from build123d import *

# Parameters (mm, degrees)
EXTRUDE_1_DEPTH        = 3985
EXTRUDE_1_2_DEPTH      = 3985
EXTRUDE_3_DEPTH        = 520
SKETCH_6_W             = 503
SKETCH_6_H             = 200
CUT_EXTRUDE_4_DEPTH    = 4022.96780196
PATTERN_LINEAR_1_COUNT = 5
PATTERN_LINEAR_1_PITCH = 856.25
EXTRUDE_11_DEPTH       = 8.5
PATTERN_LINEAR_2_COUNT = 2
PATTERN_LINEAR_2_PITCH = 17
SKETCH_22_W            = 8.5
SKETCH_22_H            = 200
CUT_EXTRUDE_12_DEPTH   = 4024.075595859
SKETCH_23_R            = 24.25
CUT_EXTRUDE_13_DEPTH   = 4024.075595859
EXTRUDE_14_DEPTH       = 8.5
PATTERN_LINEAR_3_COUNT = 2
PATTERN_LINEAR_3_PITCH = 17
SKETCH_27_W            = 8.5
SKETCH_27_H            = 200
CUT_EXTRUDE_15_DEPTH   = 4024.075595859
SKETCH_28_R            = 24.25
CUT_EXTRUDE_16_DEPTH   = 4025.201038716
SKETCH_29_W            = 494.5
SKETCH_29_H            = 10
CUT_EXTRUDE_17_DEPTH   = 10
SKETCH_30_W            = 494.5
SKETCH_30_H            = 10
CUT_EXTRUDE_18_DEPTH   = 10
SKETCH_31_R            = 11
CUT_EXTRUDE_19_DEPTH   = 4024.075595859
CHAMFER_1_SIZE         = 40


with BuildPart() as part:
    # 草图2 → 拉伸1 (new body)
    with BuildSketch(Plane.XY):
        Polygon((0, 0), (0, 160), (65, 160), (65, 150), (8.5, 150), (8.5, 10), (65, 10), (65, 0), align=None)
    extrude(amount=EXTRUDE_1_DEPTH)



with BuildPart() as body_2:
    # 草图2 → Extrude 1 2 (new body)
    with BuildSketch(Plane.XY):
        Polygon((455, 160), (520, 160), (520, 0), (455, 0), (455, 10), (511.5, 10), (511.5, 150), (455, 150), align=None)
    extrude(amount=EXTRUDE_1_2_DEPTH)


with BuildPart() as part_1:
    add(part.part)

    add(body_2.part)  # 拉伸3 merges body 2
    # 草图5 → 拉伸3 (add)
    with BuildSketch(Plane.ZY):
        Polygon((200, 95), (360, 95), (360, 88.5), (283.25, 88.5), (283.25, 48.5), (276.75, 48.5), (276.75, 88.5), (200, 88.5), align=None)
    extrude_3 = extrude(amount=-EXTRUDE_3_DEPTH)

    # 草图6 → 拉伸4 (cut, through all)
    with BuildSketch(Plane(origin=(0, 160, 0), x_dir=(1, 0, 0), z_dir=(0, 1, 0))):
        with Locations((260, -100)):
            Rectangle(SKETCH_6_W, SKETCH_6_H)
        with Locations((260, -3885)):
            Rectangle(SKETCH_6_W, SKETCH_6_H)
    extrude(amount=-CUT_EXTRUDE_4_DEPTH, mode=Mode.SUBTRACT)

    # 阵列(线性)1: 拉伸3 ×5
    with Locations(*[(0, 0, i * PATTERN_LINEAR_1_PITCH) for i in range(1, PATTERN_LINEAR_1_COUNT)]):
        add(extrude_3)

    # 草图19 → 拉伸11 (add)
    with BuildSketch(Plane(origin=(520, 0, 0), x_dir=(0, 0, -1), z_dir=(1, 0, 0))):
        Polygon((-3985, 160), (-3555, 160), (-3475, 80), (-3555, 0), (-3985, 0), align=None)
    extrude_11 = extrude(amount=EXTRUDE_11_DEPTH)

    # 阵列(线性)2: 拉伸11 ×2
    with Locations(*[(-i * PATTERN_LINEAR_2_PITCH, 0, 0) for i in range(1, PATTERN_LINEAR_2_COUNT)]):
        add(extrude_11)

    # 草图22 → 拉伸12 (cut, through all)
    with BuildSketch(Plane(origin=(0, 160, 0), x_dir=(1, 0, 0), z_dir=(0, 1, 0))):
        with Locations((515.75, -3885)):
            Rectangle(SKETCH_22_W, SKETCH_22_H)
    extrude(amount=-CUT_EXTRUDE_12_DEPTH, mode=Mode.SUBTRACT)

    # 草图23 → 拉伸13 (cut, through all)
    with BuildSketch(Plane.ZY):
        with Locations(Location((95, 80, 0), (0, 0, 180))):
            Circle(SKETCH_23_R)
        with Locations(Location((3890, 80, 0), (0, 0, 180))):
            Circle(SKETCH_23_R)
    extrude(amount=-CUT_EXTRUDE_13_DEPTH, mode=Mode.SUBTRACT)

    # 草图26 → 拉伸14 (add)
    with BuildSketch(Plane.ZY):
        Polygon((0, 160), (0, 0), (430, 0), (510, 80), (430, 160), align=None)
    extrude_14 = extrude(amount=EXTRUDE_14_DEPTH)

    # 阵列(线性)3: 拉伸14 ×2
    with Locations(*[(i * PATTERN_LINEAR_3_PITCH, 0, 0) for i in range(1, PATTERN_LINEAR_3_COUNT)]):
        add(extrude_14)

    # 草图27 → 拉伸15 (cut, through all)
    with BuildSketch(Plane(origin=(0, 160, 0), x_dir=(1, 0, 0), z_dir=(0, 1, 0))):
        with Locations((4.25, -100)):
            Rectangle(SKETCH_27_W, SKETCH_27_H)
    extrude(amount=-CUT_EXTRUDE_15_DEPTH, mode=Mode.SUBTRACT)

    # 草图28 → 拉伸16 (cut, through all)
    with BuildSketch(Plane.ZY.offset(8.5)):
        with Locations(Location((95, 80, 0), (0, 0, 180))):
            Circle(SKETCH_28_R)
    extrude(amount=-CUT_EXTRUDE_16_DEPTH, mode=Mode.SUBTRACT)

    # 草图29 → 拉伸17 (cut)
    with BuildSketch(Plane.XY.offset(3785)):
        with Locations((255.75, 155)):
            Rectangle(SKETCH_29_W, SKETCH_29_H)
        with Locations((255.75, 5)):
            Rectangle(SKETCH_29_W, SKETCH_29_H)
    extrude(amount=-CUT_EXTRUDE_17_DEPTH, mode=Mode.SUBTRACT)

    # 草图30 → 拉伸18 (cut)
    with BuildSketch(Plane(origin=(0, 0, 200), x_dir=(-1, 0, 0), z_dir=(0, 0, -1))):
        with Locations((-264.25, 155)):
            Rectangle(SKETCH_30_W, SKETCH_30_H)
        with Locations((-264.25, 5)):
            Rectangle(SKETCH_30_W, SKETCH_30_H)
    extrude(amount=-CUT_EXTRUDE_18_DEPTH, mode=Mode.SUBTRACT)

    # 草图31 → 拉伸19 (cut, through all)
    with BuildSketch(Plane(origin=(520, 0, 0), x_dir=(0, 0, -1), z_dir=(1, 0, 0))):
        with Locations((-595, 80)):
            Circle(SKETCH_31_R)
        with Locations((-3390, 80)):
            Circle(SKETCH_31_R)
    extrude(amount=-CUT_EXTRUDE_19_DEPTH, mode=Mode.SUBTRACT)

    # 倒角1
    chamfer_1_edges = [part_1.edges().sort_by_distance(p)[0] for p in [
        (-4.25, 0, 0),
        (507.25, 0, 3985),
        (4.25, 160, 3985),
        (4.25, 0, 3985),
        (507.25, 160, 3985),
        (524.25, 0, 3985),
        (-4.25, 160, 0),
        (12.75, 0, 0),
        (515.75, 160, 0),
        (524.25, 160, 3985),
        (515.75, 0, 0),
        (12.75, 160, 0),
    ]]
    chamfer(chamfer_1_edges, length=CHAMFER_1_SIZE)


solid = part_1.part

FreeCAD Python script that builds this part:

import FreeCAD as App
import Part
import Sketcher
Q = App.Units.Quantity


def edges_at(feature, points):
    """Names of the edges that pass closest to the given points."""
    edges = feature.Shape.Edges
    near = lambda p: min(range(len(edges)), key=lambda i: edges[i].distToShape(Part.Vertex(*p))[0])
    return sorted({f"Edge{near(p) + 1}" for p in points})


def add_polygon(sketch, points):
    """Adds a closed chain of lines whose ends are joined by coincident constraints."""
    first, n = sketch.GeometryCount, len(points)
    for a, b in zip(points, points[1:] + points[:1]):
        sketch.addGeometry(Part.LineSegment(App.Vector(*a, 0), App.Vector(*b, 0)), False)
    for i in range(n):
        sketch.addConstraint(Sketcher.Constraint("Coincident", first + i, 2, first + (i + 1) % n, 1))

doc = App.newDocument("Part")
body = doc.addObject("PartDesign::Body", "Body")

# Sketch on XY plane
sketch1 = doc.addObject("Sketcher::SketchObject", "Sketch")
body.addObject(sketch1)
sketch1.AttachmentSupport = (doc.XY_Plane, [""])
sketch1.MapMode = "FlatFace"
add_polygon(sketch1, [(0, 160), (0, 0), (65, 0), (65, 10), (8, 10), (8, 150), (65, 150), (65, 160)])  # lines 0-7
sketch1.addConstraint(Sketcher.Constraint("Vertical", 0))
sketch1.addConstraint(Sketcher.Constraint("Horizontal", 1))
sketch1.addConstraint(Sketcher.Constraint("Vertical", 2))
sketch1.addConstraint(Sketcher.Constraint("Horizontal", 3))
sketch1.addConstraint(Sketcher.Constraint("Vertical", 4))
sketch1.addConstraint(Sketcher.Constraint("Horizontal", 5))
sketch1.addConstraint(Sketcher.Constraint("Vertical", 6))
sketch1.addConstraint(Sketcher.Constraint("Horizontal", 7))
sketch1.addConstraint(Sketcher.Constraint("Coincident", 0, 2, -1, 1))
sketch1.addConstraint(Sketcher.Constraint("Vertical", 2, 2, 5, 2))
sketch1.addConstraint(Sketcher.Constraint("Equal", 2, 6))
sketch1.addConstraint(Sketcher.Constraint("DistanceX", 1, 1, 1, 2, Q("65 mm")))
sketch1.addConstraint(Sketcher.Constraint("DistanceY", 0, 2, 0, 1, Q("160 mm")))
sketch1.addConstraint(Sketcher.Constraint("DistanceY", 2, 1, 2, 2, Q("10 mm")))
sketch1.addConstraint(Sketcher.Constraint("DistanceX", 3, 2, 3, 1, Q("56.5 mm")))
pad1 = doc.addObject("PartDesign::Pad", "Pad")
body.addObject(pad1)
pad1.Profile = sketch1
pad1.Length = 3985
body2 = doc.addObject("PartDesign::Body", "Body001")

# Sketch on XY plane
sketch2 = doc.addObject("Sketcher::SketchObject", "Sketch001")
body2.addObject(sketch2)
sketch2.AttachmentSupport = (doc.getObject("XY_Plane001"), [""])
sketch2.MapMode = "FlatFace"
add_polygon(sketch2, [(520, 160), (455, 160), (455, 150), (512, 150), (512, 10), (455, 10), (455, 0), (520, 0)])  # lines 0-7
sketch2.addConstraint(Sketcher.Constraint("Horizontal", 0))
sketch2.addConstraint(Sketcher.Constraint("Vertical", 1))
sketch2.addConstraint(Sketcher.Constraint("Horizontal", 2))
sketch2.addConstraint(Sketcher.Constraint("Vertical", 3))
sketch2.addConstraint(Sketcher.Constraint("Horizontal", 4))
sketch2.addConstraint(Sketcher.Constraint("Vertical", 5))
sketch2.addConstraint(Sketcher.Constraint("Horizontal", 6))
sketch2.addConstraint(Sketcher.Constraint("Vertical", 7))
sketch2.addConstraint(Sketcher.Constraint("PointOnObject", 5, 2, -1))
sketch2.addConstraint(Sketcher.Constraint("Vertical", 1, 2, 4, 2))
sketch2.addConstraint(Sketcher.Constraint("Equal", 1, 5))
sketch2.addConstraint(Sketcher.Constraint("DistanceX", 0, 2, 0, 1, Q("65 mm")))
sketch2.addConstraint(Sketcher.Constraint("DistanceY", 1, 2, 1, 1, Q("10 mm")))
sketch2.addConstraint(Sketcher.Constraint("DistanceY", 3, 2, 3, 1, Q("140 mm")))
sketch2.addConstraint(Sketcher.Constraint("DistanceX", 2, 1, 2, 2, Q("56.5 mm")))
sketch2.addConstraint(Sketcher.Constraint("DistanceX", -1, 1, 0, 2, Q("455 mm")))
pad2 = doc.addObject("PartDesign::Pad", "Pad001")
body2.addObject(pad2)
pad2.Profile = sketch2
pad2.Length = 3985
body.AllowCompound = True
doc.recompute()

boolean = doc.addObject("PartDesign::Boolean", "Boolean")
body.addObject(boolean)
boolean.Type = "Fuse"
boolean.addObjects([body2])

# Sketch on YZ plane
sketch3 = doc.addObject("Sketcher::SketchObject", "Sketch002")
body.addObject(sketch3)
sketch3.AttachmentSupport = (doc.YZ_Plane, [""])
sketch3.MapMode = "FlatFace"
add_polygon(sketch3, [(95, 360), (95, 200), (88, 200), (88, 277), (48, 277), (48, 283), (88, 283), (88, 360)])  # lines 0-7
sketch3.addConstraint(Sketcher.Constraint("Vertical", 0))
sketch3.addConstraint(Sketcher.Constraint("Horizontal", 1))
sketch3.addConstraint(Sketcher.Constraint("Vertical", 2))
sketch3.addConstraint(Sketcher.Constraint("Horizontal", 3))
sketch3.addConstraint(Sketcher.Constraint("Vertical", 4))
sketch3.addConstraint(Sketcher.Constraint("Horizontal", 5))
sketch3.addConstraint(Sketcher.Constraint("Vertical", 6))
sketch3.addConstraint(Sketcher.Constraint("Horizontal", 7))
sketch3.addConstraint(Sketcher.Constraint("Vertical", 2, 2, 5, 2))
sketch3.addConstraint(Sketcher.Constraint("Equal", 7, 4))
sketch3.addConstraint(Sketcher.Constraint("Equal", 2, 6))
sketch3.addConstraint(Sketcher.Constraint("DistanceX", 3, 2, 3, 1, Q("40 mm")))
sketch3.addConstraint(Sketcher.Constraint("DistanceY", 0, 2, 0, 1, Q("160 mm")))
sketch3.addConstraint(Sketcher.Constraint("DistanceX", 1, 2, 1, 1, Q("6.5 mm")))
sketch3.addConstraint(Sketcher.Constraint("DistanceX", -1, 1, 0, 2, Q("95 mm")))
sketch3.addConstraint(Sketcher.Constraint("DistanceY", -1, 1, 0, 2, Q("200 mm")))
pad3 = doc.addObject("PartDesign::Pad", "Pad002")
body.addObject(pad3)
pad3.Profile = sketch3
pad3.Length = 520

# Sketch on XZ plane
sketch4 = doc.addObject("Sketcher::SketchObject", "Sketch003")
body.addObject(sketch4)
sketch4.AttachmentSupport = (doc.XZ_Plane, [""])
sketch4.MapMode = "FlatFace"
sketch4.AttachmentOffset = App.Placement(App.Vector(0, 0, -160), App.Rotation())
add_polygon(sketch4, [(8, 0), (8, 200), (512, 200), (512, 0)])  # lines 0-3
add_polygon(sketch4, [(8, 3785), (8, 3985), (512, 3985), (512, 3785)])  # lines 4-7
sketch4.addConstraint(Sketcher.Constraint("Vertical", 0))
sketch4.addConstraint(Sketcher.Constraint("Horizontal", 1))
sketch4.addConstraint(Sketcher.Constraint("Vertical", 2))
sketch4.addConstraint(Sketcher.Constraint("Horizontal", 3))
sketch4.addConstraint(Sketcher.Constraint("Vertical", 4))
sketch4.addConstraint(Sketcher.Constraint("Horizontal", 5))
sketch4.addConstraint(Sketcher.Constraint("Vertical", 6))
sketch4.addConstraint(Sketcher.Constraint("Horizontal", 7))
sketch4.addConstraint(Sketcher.Constraint("PointOnObject", 2, 2, -1))
sketch4.addConstraint(Sketcher.Constraint("Vertical", 3, 2, 4, 2))
sketch4.addConstraint(Sketcher.Constraint("Vertical", 2, 2, 5, 2))
sketch4.addConstraint(Sketcher.Constraint("Equal", 2, 4))
sketch4.addConstraint(Sketcher.Constraint("DistanceX", 1, 1, 1, 2, Q("503 mm")))
sketch4.addConstraint(Sketcher.Constraint("DistanceY", 0, 1, 0, 2, Q("200 mm")))
sketch4.addConstraint(Sketcher.Constraint("DistanceY", -1, 1, 4, 2, Q("3985 mm")))
sketch4.addConstraint(Sketcher.Constraint("DistanceX", -1, 1, 0, 2, Q("8.5 mm")))
pocket1 = doc.addObject("PartDesign::Pocket", "Pocket")
body.addObject(pocket1)
pocket1.Profile = sketch4
pocket1.Type = "ThroughAll"
pocket1.Reversed = True
doc.recompute()

linearpattern = doc.addObject("PartDesign::LinearPattern", "LinearPattern")
body.addObject(linearpattern)
linearpattern.Originals = [pad3]
linearpattern.Direction = (doc.Z_Axis, [""])
linearpattern.Mode = "offset"
linearpattern.Offset = 856.25
linearpattern.Occurrences = 5
body.Tip = linearpattern

# Sketch on YZ plane
sketch5 = doc.addObject("Sketcher::SketchObject", "Sketch004")
body.addObject(sketch5)
sketch5.AttachmentSupport = (doc.YZ_Plane, [""])
sketch5.MapMode = "FlatFace"
sketch5.AttachmentOffset = App.Placement(App.Vector(0, 0, 520), App.Rotation())
add_polygon(sketch5, [(160, 3555), (160, 3985), (0, 3985), (0, 3555), (80, 3475)])  # lines 0-4
sketch5.addConstraint(Sketcher.Constraint("Vertical", 0))
sketch5.addConstraint(Sketcher.Constraint("Horizontal", 1))
sketch5.addConstraint(Sketcher.Constraint("Vertical", 2))
sketch5.addConstraint(Sketcher.Constraint("PointOnObject", 1, 2, -2))
sketch5.addConstraint(Sketcher.Constraint("Perpendicular", 3, 4))
sketch5.addConstraint(Sketcher.Constraint("Horizontal", 2, 2, 4, 2))
sketch5.addConstraint(Sketcher.Constraint("Equal", 3, 4))
sketch5.addConstraint(Sketcher.Constraint("DistanceX", 1, 2, 1, 1, Q("160 mm")))
sketch5.addConstraint(Sketcher.Constraint("DistanceY", 0, 1, 0, 2, Q("430 mm")))
sketch5.addConstraint(Sketcher.Constraint("DistanceY", -1, 1, 0, 2, Q("3985 mm")))
pad4 = doc.addObject("PartDesign::Pad", "Pad003")
body.addObject(pad4)
pad4.Profile = sketch5
pad4.Length = 8.5
doc.recompute()

linearpattern2 = doc.addObject("PartDesign::LinearPattern", "LinearPattern001")
body.addObject(linearpattern2)
linearpattern2.Originals = [pad4]
linearpattern2.Direction = (doc.X_Axis, [""])
linearpattern2.Mode = "offset"
linearpattern2.Offset = 17
linearpattern2.Occurrences = 2
linearpattern2.Reversed = True
body.Tip = linearpattern2

# Sketch on XZ plane
sketch6 = doc.addObject("Sketcher::SketchObject", "Sketch005")
body.addObject(sketch6)
sketch6.AttachmentSupport = (doc.XZ_Plane, [""])
sketch6.MapMode = "FlatFace"
sketch6.AttachmentOffset = App.Placement(App.Vector(0, 0, -160), App.Rotation())
add_polygon(sketch6, [(512, 3785), (512, 3985), (520, 3985), (520, 3785)])  # lines 0-3
sketch6.addConstraint(Sketcher.Constraint("Vertical", 0))
sketch6.addConstraint(Sketcher.Constraint("Horizontal", 1))
sketch6.addConstraint(Sketcher.Constraint("Vertical", 2))
sketch6.addConstraint(Sketcher.Constraint("Horizontal", 3))
sketch6.addConstraint(Sketcher.Constraint("DistanceY", 0, 1, 0, 2, Q("200 mm")))
sketch6.addConstraint(Sketcher.Constraint("DistanceX", 1, 1, 1, 2, Q("8.5 mm")))
sketch6.addConstraint(Sketcher.Constraint("DistanceY", -1, 1, 0, 2, Q("3985 mm")))
sketch6.addConstraint(Sketcher.Constraint("DistanceX", -1, 1, 1, 2, Q("520 mm")))
pocket2 = doc.addObject("PartDesign::Pocket", "Pocket001")
body.addObject(pocket2)
pocket2.Profile = sketch6
pocket2.Type = "ThroughAll"
pocket2.Reversed = True

# Sketch on YZ plane
sketch7 = doc.addObject("Sketcher::SketchObject", "Sketch006")
body.addObject(sketch7)
sketch7.AttachmentSupport = (doc.YZ_Plane, [""])
sketch7.MapMode = "FlatFace"
sketch7.addGeometry(Part.Circle(App.Vector(80, 95, 0), App.Vector(0, 0, 1), 24), False)
sketch7.addGeometry(Part.Circle(App.Vector(80, 3890, 0), App.Vector(0, 0, 1), 24), False)
sketch7.addConstraint(Sketcher.Constraint("Equal", 0, 1))
sketch7.addConstraint(Sketcher.Constraint("Vertical", 0, 3, 1, 3))
sketch7.addConstraint(Sketcher.Constraint("Diameter", 0, Q("48.5 mm")))
sketch7.addConstraint(Sketcher.Constraint("DistanceX", -1, 1, 0, 3, Q("80 mm")))
sketch7.addConstraint(Sketcher.Constraint("DistanceY", -1, 1, 0, 3, Q("95 mm")))
sketch7.addConstraint(Sketcher.Constraint("DistanceY", -1, 1, 1, 3, Q("3890 mm")))
pocket3 = doc.addObject("PartDesign::Pocket", "Pocket002")
body.addObject(pocket3)
pocket3.Profile = sketch7
pocket3.Type = "ThroughAll"
pocket3.Reversed = True

# Sketch on YZ plane
sketch8 = doc.addObject("Sketcher::SketchObject", "Sketch007")
body.addObject(sketch8)
sketch8.AttachmentSupport = (doc.YZ_Plane, [""])
sketch8.MapMode = "FlatFace"
add_polygon(sketch8, [(160, 0), (0, 0), (0, 430), (80, 510), (160, 430)])  # lines 0-4
sketch8.addConstraint(Sketcher.Constraint("Horizontal", 0))
sketch8.addConstraint(Sketcher.Constraint("Vertical", 1))
sketch8.addConstraint(Sketcher.Constraint("Vertical", 4))
sketch8.addConstraint(Sketcher.Constraint("Coincident", 0, 2, -1, 1))
sketch8.addConstraint(Sketcher.Constraint("Perpendicular", 2, 3))
sketch8.addConstraint(Sketcher.Constraint("Horizontal", 1, 2, 3, 2))
sketch8.addConstraint(Sketcher.Constraint("Equal", 2, 3))
sketch8.addConstraint(Sketcher.Constraint("DistanceX", 0, 2, 0, 1, Q("160 mm")))
sketch8.addConstraint(Sketcher.Constraint("DistanceY", 1, 1, 1, 2, Q("430 mm")))
pad5 = doc.addObject("PartDesign::Pad", "Pad004")
body.addObject(pad5)
pad5.Profile = sketch8
pad5.Length = 8.5
pad5.Reversed = True
doc.recompute()

linearpattern3 = doc.addObject("PartDesign::LinearPattern", "LinearPattern002")
body.addObject(linearpattern3)
linearpattern3.Originals = [pad5]
linearpattern3.Direction = (doc.X_Axis, [""])
linearpattern3.Mode = "offset"
linearpattern3.Offset = 17
linearpattern3.Occurrences = 2
body.Tip = linearpattern3

# Sketch on XZ plane
sketch9 = doc.addObject("Sketcher::SketchObject", "Sketch008")
body.addObject(sketch9)
sketch9.AttachmentSupport = (doc.XZ_Plane, [""])
sketch9.MapMode = "FlatFace"
sketch9.AttachmentOffset = App.Placement(App.Vector(0, 0, -160), App.Rotation())
add_polygon(sketch9, [(0, 0), (0, 200), (8, 200), (8, 0)])  # lines 0-3
sketch9.addConstraint(Sketcher.Constraint("Vertical", 0))
sketch9.addConstraint(Sketcher.Constraint("Horizontal", 1))
sketch9.addConstraint(Sketcher.Constraint("Vertical", 2))
sketch9.addConstraint(Sketcher.Constraint("Horizontal", 3))
sketch9.addConstraint(Sketcher.Constraint("Coincident", 3, 2, -1, 1))
sketch9.addConstraint(Sketcher.Constraint("DistanceY", 0, 1, 0, 2, Q("200 mm")))
sketch9.addConstraint(Sketcher.Constraint("DistanceX", 1, 1, 1, 2, Q("8.5 mm")))
pocket4 = doc.addObject("PartDesign::Pocket", "Pocket003")
body.addObject(pocket4)
pocket4.Profile = sketch9
pocket4.Type = "ThroughAll"
pocket4.Reversed = True

# Sketch on YZ plane
sketch10 = doc.addObject("Sketcher::SketchObject", "Sketch009")
body.addObject(sketch10)
sketch10.AttachmentSupport = (doc.YZ_Plane, [""])
sketch10.MapMode = "FlatFace"
sketch10.AttachmentOffset = App.Placement(App.Vector(0, 0, -8.5), App.Rotation())
sketch10.addGeometry(Part.Circle(App.Vector(80, 95, 0), App.Vector(0, 0, 1), 24), False)
sketch10.addConstraint(Sketcher.Constraint("Diameter", 0, Q("48.5 mm")))
sketch10.addConstraint(Sketcher.Constraint("DistanceX", -1, 1, 0, 3, Q("80 mm")))
sketch10.addConstraint(Sketcher.Constraint("DistanceY", -1, 1, 0, 3, Q("95 mm")))
pocket5 = doc.addObject("PartDesign::Pocket", "Pocket004")
body.addObject(pocket5)
pocket5.Profile = sketch10
pocket5.Type = "ThroughAll"
pocket5.Reversed = True

# Sketch on XY plane
sketch11 = doc.addObject("Sketcher::SketchObject", "Sketch010")
body.addObject(sketch11)
sketch11.AttachmentSupport = (doc.XY_Plane, [""])
sketch11.MapMode = "FlatFace"
sketch11.AttachmentOffset = App.Placement(App.Vector(0, 0, 3785), App.Rotation())
add_polygon(sketch11, [(8, 160), (8, 150), (503, 150), (503, 160)])  # lines 0-3
add_polygon(sketch11, [(8, 10), (8, 0), (503, 0), (503, 10)])  # lines 4-7
sketch11.addConstraint(Sketcher.Constraint("Vertical", 0))
sketch11.addConstraint(Sketcher.Constraint("Horizontal", 1))
sketch11.addConstraint(Sketcher.Constraint("Vertical", 2))
sketch11.addConstraint(Sketcher.Constraint("Horizontal", 3))
sketch11.addConstraint(Sketcher.Constraint("Vertical", 4))
sketch11.addConstraint(Sketcher.Constraint("Horizontal", 5))
sketch11.addConstraint(Sketcher.Constraint("Vertical", 6))
sketch11.addConstraint(Sketcher.Constraint("Horizontal", 7))
sketch11.addConstraint(Sketcher.Constraint("PointOnObject", 4, 2, -1))
sketch11.addConstraint(Sketcher.Constraint("Vertical", 3, 2, 4, 2))
sketch11.addConstraint(Sketcher.Constraint("Vertical", 2, 2, 5, 2))
sketch11.addConstraint(Sketcher.Constraint("Equal", 2, 4))
sketch11.addConstraint(Sketcher.Constraint("DistanceY", 0, 2, 0, 1, Q("10 mm")))
sketch11.addConstraint(Sketcher.Constraint("DistanceX", 1, 1, 1, 2, Q("494.5 mm")))
sketch11.addConstraint(Sketcher.Constraint("DistanceY", -1, 1, 0, 2, Q("150 mm")))
sketch11.addConstraint(Sketcher.Constraint("DistanceX", -1, 1, 1, 2, Q("503 mm")))
pocket6 = doc.addObject("PartDesign::Pocket", "Pocket005")
body.addObject(pocket6)
pocket6.Profile = sketch11
pocket6.Length = 10

# Sketch on XY plane
sketch12 = doc.addObject("Sketcher::SketchObject", "Sketch011")
body.addObject(sketch12)
sketch12.AttachmentSupport = (doc.XY_Plane, [""])
sketch12.MapMode = "FlatFace"
sketch12.AttachmentOffset = App.Placement(App.Vector(0, 0, 200), App.Rotation())
add_polygon(sketch12, [(512, 160), (512, 150), (17, 150), (17, 160)])  # lines 0-3
add_polygon(sketch12, [(512, 10), (512, 0), (17, 0), (17, 10)])  # lines 4-7
sketch12.addConstraint(Sketcher.Constraint("Vertical", 0))
sketch12.addConstraint(Sketcher.Constraint("Horizontal", 1))
sketch12.addConstraint(Sketcher.Constraint("Vertical", 2))
sketch12.addConstraint(Sketcher.Constraint("Horizontal", 3))
sketch12.addConstraint(Sketcher.Constraint("Vertical", 4))
sketch12.addConstraint(Sketcher.Constraint("Horizontal", 5))
sketch12.addConstraint(Sketcher.Constraint("Vertical", 6))
sketch12.addConstraint(Sketcher.Constraint("Horizontal", 7))
sketch12.addConstraint(Sketcher.Constraint("PointOnObject", 4, 2, -1))
sketch12.addConstraint(Sketcher.Constraint("Vertical", 3, 2, 4, 2))
sketch12.addConstraint(Sketcher.Constraint("Vertical", 2, 2, 5, 2))
sketch12.addConstraint(Sketcher.Constraint("Equal", 2, 4))
sketch12.addConstraint(Sketcher.Constraint("DistanceY", 0, 2, 0, 1, Q("10 mm")))
sketch12.addConstraint(Sketcher.Constraint("DistanceX", 1, 2, 1, 1, Q("494.5 mm")))
sketch12.addConstraint(Sketcher.Constraint("DistanceY", -1, 1, 0, 2, Q("150 mm")))
sketch12.addConstraint(Sketcher.Constraint("DistanceX", -1, 1, 1, 2, Q("17 mm")))
pocket7 = doc.addObject("PartDesign::Pocket", "Pocket006")
body.addObject(pocket7)
pocket7.Profile = sketch12
pocket7.Length = 10
pocket7.Reversed = True

# Sketch on YZ plane
sketch13 = doc.addObject("Sketcher::SketchObject", "Sketch012")
body.addObject(sketch13)
sketch13.AttachmentSupport = (doc.YZ_Plane, [""])
sketch13.MapMode = "FlatFace"
sketch13.AttachmentOffset = App.Placement(App.Vector(0, 0, 520), App.Rotation())
sketch13.addGeometry(Part.Circle(App.Vector(80, 595, 0), App.Vector(0, 0, 1), 11), False)
sketch13.addGeometry(Part.Circle(App.Vector(80, 3390, 0), App.Vector(0, 0, 1), 11), False)
sketch13.addConstraint(Sketcher.Constraint("Equal", 0, 1))
sketch13.addConstraint(Sketcher.Constraint("Vertical", 0, 3, 1, 3))
sketch13.addConstraint(Sketcher.Constraint("Diameter", 0, Q("22 mm")))
sketch13.addConstraint(Sketcher.Constraint("DistanceX", -1, 1, 0, 3, Q("80 mm")))
sketch13.addConstraint(Sketcher.Constraint("DistanceY", -1, 1, 0, 3, Q("595 mm")))
sketch13.addConstraint(Sketcher.Constraint("DistanceY", -1, 1, 1, 3, Q("3390 mm")))
pocket8 = doc.addObject("PartDesign::Pocket", "Pocket007")
body.addObject(pocket8)
pocket8.Profile = sketch13
pocket8.Type = "ThroughAll"
doc.recompute()

chamfer = doc.addObject("PartDesign::Chamfer", "Chamfer")
body.addObject(chamfer)
chamfer.Base = (pocket8, edges_at(pocket8, [
    (-4.25, 0, 0),
    (507.25, 0, 3985),
    (4.25, 160, 3985),
    (4.25, 0, 3985),
    (507.25, 160, 3985),
    (524.25, 0, 3985),
    (-4.25, 160, 0),
    (12.75, 0, 0),
    (515.75, 160, 0),
    (524.25, 160, 3985),
    (515.75, 0, 0),
    (12.75, 160, 0),
]))
chamfer.Size = 40

doc.recompute()
